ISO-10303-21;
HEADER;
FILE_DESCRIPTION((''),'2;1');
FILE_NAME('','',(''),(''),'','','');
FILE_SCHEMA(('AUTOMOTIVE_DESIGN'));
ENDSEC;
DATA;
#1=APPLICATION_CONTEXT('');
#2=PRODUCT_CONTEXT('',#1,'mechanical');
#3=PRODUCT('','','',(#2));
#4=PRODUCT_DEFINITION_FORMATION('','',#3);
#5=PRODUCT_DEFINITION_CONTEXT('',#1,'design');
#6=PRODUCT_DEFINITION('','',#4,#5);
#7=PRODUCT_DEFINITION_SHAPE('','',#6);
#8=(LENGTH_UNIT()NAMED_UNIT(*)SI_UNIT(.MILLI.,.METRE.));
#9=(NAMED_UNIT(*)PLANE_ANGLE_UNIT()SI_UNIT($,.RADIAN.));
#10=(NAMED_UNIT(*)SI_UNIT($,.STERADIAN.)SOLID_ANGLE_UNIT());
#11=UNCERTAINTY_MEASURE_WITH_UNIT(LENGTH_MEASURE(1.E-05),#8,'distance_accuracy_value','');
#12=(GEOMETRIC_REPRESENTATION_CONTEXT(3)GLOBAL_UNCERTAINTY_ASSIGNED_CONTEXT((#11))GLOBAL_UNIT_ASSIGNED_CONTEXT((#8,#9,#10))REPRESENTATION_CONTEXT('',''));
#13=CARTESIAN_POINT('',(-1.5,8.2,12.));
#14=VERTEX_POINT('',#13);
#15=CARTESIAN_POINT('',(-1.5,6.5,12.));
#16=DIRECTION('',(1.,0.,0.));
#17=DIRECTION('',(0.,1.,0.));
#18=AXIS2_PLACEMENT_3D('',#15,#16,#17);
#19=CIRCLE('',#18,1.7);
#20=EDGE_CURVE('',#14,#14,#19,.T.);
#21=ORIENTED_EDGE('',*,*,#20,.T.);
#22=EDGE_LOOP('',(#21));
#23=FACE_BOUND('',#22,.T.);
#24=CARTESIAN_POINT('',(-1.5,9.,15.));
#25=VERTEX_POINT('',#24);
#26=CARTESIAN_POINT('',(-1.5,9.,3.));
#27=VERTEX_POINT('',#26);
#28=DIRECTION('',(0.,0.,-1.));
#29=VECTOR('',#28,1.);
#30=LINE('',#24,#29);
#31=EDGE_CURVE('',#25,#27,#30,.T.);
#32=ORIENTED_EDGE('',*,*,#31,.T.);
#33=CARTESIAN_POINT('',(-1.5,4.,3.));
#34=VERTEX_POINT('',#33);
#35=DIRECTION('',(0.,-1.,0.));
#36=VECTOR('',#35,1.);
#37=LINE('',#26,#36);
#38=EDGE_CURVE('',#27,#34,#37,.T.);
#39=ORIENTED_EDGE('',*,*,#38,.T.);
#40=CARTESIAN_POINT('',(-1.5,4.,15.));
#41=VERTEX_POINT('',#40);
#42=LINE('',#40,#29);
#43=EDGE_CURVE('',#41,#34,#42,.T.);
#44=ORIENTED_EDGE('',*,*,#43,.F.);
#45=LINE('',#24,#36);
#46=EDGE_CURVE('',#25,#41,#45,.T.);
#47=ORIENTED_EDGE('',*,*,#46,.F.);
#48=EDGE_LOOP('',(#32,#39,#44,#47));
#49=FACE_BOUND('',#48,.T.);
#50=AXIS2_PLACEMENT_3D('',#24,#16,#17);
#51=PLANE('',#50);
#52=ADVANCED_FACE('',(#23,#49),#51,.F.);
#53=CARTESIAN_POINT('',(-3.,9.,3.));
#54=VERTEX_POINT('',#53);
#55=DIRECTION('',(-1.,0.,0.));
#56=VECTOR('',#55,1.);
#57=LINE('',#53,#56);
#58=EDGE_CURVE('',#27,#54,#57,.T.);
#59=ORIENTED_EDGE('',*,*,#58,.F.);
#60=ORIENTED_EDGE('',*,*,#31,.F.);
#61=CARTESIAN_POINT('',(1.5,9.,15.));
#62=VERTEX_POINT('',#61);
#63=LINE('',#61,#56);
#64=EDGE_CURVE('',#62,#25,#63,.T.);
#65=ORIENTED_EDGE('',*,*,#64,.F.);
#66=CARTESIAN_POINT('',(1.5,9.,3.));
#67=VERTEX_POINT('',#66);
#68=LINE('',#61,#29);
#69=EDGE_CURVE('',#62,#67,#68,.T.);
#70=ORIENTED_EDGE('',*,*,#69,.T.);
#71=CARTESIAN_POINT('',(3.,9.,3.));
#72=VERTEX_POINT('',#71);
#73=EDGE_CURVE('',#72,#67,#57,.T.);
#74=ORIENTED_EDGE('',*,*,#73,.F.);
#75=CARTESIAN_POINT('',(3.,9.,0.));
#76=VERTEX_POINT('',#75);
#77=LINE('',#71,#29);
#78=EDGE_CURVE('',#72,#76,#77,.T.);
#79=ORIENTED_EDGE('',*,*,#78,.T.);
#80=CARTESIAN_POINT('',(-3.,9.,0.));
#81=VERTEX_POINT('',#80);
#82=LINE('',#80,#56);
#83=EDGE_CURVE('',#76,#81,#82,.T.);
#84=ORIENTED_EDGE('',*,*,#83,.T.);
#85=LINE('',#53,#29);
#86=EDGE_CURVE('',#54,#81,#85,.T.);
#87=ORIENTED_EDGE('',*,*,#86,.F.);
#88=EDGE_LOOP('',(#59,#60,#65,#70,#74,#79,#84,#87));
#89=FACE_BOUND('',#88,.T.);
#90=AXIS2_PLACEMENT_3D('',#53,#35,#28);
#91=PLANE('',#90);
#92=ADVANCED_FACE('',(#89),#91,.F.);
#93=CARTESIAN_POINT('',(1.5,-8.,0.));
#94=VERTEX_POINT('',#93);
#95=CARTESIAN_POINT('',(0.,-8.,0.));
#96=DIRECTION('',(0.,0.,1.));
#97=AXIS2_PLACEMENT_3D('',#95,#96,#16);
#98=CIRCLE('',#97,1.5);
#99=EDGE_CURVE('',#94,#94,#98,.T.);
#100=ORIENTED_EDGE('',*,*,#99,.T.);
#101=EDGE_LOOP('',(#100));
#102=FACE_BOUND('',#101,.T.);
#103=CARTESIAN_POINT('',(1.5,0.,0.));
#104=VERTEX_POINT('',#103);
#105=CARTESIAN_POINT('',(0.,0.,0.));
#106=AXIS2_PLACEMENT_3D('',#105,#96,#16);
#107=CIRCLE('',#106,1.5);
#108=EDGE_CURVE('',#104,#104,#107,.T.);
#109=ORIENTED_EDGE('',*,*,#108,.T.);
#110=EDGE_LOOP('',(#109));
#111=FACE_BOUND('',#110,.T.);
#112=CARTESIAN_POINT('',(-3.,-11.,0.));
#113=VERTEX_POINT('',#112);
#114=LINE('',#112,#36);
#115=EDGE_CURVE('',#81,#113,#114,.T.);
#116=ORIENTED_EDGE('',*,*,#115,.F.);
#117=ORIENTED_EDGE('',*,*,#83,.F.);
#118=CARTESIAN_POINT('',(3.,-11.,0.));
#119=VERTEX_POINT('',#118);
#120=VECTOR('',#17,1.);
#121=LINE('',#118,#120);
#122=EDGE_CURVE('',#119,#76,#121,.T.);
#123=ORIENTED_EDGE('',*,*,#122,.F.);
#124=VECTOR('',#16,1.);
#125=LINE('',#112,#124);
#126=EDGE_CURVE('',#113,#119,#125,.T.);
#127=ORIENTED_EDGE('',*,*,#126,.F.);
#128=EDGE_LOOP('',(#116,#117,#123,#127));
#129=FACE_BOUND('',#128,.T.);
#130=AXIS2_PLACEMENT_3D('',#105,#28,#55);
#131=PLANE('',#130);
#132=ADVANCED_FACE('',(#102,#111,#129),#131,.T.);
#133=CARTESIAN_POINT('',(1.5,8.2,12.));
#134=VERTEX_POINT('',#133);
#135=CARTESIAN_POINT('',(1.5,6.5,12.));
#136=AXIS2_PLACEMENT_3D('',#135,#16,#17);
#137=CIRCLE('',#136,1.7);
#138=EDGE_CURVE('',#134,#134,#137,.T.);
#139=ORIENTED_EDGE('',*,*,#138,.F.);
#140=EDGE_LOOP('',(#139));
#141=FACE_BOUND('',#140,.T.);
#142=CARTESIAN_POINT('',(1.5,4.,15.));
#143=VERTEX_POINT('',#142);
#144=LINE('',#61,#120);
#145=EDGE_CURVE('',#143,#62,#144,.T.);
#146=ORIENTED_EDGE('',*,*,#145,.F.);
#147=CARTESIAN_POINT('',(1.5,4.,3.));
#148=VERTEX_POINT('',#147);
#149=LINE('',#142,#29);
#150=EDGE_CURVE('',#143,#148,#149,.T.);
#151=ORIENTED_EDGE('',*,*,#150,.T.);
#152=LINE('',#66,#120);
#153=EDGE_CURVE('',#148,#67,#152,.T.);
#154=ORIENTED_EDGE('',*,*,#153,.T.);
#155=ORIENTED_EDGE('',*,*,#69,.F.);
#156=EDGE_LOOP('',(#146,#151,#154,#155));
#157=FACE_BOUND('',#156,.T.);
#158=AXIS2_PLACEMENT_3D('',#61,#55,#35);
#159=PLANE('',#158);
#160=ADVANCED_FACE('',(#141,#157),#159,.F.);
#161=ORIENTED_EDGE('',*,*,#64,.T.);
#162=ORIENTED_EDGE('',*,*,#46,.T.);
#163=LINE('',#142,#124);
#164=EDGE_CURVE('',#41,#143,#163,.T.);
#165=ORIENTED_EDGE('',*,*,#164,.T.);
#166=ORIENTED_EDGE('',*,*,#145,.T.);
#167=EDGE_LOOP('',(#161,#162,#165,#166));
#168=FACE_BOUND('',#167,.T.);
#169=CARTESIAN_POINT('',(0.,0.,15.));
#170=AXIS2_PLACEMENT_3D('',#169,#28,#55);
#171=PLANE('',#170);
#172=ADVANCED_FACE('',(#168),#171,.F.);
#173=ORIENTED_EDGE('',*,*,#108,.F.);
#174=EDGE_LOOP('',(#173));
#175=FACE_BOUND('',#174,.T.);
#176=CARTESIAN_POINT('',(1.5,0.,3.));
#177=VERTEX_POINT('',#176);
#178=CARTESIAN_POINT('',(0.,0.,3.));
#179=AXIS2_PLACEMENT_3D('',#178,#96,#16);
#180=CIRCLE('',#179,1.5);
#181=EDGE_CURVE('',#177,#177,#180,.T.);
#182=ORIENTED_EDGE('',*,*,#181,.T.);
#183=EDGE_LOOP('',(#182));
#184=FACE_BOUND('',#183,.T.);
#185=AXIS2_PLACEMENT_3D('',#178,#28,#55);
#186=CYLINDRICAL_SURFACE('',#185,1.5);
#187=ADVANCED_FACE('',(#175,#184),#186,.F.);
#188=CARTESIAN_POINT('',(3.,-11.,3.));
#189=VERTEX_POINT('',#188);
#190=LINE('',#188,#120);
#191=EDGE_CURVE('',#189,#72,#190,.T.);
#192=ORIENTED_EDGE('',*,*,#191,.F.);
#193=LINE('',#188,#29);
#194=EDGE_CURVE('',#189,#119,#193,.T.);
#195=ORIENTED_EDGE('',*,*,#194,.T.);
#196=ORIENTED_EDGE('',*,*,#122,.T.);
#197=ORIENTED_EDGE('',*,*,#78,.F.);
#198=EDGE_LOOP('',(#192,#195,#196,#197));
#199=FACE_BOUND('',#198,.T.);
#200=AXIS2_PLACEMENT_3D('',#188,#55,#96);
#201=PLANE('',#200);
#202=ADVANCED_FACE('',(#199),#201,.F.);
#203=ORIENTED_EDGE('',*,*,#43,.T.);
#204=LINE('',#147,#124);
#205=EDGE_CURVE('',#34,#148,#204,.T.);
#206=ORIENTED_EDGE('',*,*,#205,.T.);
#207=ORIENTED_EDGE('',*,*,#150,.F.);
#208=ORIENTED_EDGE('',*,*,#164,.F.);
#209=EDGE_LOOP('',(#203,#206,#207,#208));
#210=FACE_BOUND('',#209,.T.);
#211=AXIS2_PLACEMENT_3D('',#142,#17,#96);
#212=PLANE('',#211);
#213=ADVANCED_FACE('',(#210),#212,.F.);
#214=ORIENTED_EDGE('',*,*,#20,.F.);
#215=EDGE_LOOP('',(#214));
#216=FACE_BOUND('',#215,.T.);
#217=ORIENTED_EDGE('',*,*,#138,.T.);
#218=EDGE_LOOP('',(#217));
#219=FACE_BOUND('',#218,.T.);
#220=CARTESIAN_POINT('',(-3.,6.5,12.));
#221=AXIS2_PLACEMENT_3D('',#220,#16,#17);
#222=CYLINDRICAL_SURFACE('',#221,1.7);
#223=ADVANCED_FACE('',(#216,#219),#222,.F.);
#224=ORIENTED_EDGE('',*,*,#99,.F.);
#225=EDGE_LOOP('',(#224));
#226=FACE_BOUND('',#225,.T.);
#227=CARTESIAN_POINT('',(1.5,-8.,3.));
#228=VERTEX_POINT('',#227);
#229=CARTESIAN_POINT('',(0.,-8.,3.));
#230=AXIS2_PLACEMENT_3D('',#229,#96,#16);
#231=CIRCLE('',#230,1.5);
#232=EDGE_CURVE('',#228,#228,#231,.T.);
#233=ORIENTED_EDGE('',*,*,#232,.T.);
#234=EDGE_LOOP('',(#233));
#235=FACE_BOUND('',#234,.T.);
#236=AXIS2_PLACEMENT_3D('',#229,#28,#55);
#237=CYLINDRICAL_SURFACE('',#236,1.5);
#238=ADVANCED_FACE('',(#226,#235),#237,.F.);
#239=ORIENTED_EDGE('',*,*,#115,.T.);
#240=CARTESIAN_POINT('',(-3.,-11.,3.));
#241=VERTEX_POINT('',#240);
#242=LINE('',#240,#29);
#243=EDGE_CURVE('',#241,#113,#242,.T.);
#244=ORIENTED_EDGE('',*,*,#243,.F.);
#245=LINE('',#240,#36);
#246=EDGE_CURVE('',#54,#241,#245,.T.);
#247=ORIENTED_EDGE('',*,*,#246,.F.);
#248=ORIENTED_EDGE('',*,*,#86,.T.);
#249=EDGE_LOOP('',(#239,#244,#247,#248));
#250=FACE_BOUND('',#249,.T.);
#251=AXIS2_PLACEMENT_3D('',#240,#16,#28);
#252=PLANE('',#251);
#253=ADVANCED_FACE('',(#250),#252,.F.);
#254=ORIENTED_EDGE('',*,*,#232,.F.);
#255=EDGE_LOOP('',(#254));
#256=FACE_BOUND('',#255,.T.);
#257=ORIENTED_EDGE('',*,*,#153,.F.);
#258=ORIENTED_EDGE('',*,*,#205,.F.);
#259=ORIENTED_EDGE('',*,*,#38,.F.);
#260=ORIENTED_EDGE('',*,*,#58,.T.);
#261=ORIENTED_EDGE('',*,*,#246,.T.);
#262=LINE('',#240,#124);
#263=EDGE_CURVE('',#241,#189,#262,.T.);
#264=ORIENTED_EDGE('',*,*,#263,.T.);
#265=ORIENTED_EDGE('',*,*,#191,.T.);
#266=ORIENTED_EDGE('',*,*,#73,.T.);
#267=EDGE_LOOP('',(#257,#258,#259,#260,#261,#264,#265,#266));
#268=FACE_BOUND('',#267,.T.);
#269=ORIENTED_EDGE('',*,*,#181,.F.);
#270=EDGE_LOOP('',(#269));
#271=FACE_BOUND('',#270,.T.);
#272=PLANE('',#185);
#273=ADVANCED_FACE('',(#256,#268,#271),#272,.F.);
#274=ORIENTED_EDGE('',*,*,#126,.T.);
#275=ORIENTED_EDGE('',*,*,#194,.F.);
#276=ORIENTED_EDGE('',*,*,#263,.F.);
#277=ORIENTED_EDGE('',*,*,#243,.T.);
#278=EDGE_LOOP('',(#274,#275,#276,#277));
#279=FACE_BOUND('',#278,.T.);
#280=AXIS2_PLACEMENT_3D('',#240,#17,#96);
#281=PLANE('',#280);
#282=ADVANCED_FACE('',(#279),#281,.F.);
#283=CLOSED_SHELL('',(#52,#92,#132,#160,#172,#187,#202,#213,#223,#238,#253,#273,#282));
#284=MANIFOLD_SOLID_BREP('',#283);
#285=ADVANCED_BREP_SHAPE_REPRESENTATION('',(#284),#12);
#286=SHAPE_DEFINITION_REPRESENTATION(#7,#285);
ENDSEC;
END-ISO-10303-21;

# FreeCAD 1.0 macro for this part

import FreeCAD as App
import Part
import Sketcher

V = App.Vector
Q = App.Units.Quantity

doc = App.newDocument("Part")
body = doc.addObject("PartDesign::Body", "Body")

sketch1 = body.newObject("Sketcher::SketchObject", "Sketch")
sketch1.AttachmentSupport = (doc.getObject("XY_Plane"), [""])
sketch1.MapMode = "FlatFace"
sketch1.addGeometry(Part.LineSegment(V(-3, 9, 0), V(-3, -11, 0)), False)
sketch1.addGeometry(Part.LineSegment(V(-3, -11, 0), V(3, -11, 0)), False)
sketch1.addGeometry(Part.LineSegment(V(3, -11, 0), V(3, 9, 0)), False)
sketch1.addGeometry(Part.LineSegment(V(3, 9, 0), V(-3, 9, 0)), False)
sketch1.addGeometry(Part.Circle(V(0, -8, 0), V(0, 0, 1), 1.5), False)
sketch1.addGeometry(Part.Circle(V(0, 0, 0), V(0, 0, 1), 1.5), False)
sketch1.addConstraint(Sketcher.Constraint("Coincident", 0, 2, 1, 1))
sketch1.addConstraint(Sketcher.Constraint("Coincident", 1, 2, 2, 1))
sketch1.addConstraint(Sketcher.Constraint("Coincident", 2, 2, 3, 1))
sketch1.addConstraint(Sketcher.Constraint("Coincident", 3, 2, 0, 1))
sketch1.addConstraint(Sketcher.Constraint("Vertical", 0))
sketch1.addConstraint(Sketcher.Constraint("Horizontal", 1))
sketch1.addConstraint(Sketcher.Constraint("Vertical", 2))
sketch1.addConstraint(Sketcher.Constraint("Horizontal", 3))
sketch1.addConstraint(Sketcher.Constraint("Coincident", 5, 3, -1, 1))
sketch1.addConstraint(Sketcher.Constraint("Equal", 4, 5))
sketch1.addConstraint(Sketcher.Constraint("PointOnObject", 4, 3, -2))
sketch1.addConstraint(Sketcher.Constraint("Diameter", 4, Q("3 mm")))
sketch1.addConstraint(Sketcher.Constraint("DistanceX", 1, 1, 1, 2, Q("6 mm")))
sketch1.addConstraint(Sketcher.Constraint("DistanceY", 0, 2, 0, 1, Q("20 mm")))
sketch1.addConstraint(Sketcher.Constraint("DistanceY", 4, 3, -1, 1, Q("8 mm")))
sketch1.addConstraint(Sketcher.Constraint("DistanceX", 0, 2, -1, 1, Q("3 mm")))
sketch1.addConstraint(Sketcher.Constraint("DistanceY", 0, 2, -1, 1, Q("11 mm")))
pad1 = body.newObject("PartDesign::Pad", "Pad")
pad1.Profile = sketch1
pad1.Length = 3

sketch2 = body.newObject("Sketcher::SketchObject", "Sketch001")
sketch2.AttachmentSupport = (doc.getObject("XY_Plane"), [""])
sketch2.MapMode = "FlatFace"
sketch2.AttachmentOffset = App.Placement(V(0, 0, 3), App.Rotation())
sketch2.addGeometry(Part.LineSegment(V(-1.5, 9, 0), V(-1.5, 4, 0)), False)
sketch2.addGeometry(Part.LineSegment(V(-1.5, 4, 0), V(1.5, 4, 0)), False)
sketch2.addGeometry(Part.LineSegment(V(1.5, 4, 0), V(1.5, 9, 0)), False)
sketch2.addGeometry(Part.LineSegment(V(1.5, 9, 0), V(-1.5, 9, 0)), False)
sketch2.addConstraint(Sketcher.Constraint("Coincident", 0, 2, 1, 1))
sketch2.addConstraint(Sketcher.Constraint("Coincident", 1, 2, 2, 1))
sketch2.addConstraint(Sketcher.Constraint("Coincident", 2, 2, 3, 1))
sketch2.addConstraint(Sketcher.Constraint("Coincident", 3, 2, 0, 1))
sketch2.addConstraint(Sketcher.Constraint("Vertical", 0))
sketch2.addConstraint(Sketcher.Constraint("Horizontal", 1))
sketch2.addConstraint(Sketcher.Constraint("Vertical", 2))
sketch2.addConstraint(Sketcher.Constraint("Horizontal", 3))
sketch2.addConstraint(Sketcher.Constraint("DistanceX", 1, 1, 1, 2, Q("3 mm")))
sketch2.addConstraint(Sketcher.Constraint("DistanceY", 0, 2, 0, 1, Q("5 mm")))
sketch2.addConstraint(Sketcher.Constraint("DistanceY", -1, 1, 0, 2, Q("4 mm")))
sketch2.addConstraint(Sketcher.Constraint("DistanceX", 0, 2, -1, 1, Q("1.5 mm")))
pad2 = body.newObject("PartDesign::Pad", "Pad001")
pad2.Profile = sketch2
pad2.Length = 12

sketch3 = body.newObject("Sketcher::SketchObject", "Sketch002")
sketch3.AttachmentSupport = (doc.getObject("YZ_Plane"), [""])
sketch3.MapMode = "FlatFace"
sketch3.AttachmentOffset = App.Placement(V(0, 0, 1.5), App.Rotation())
sketch3.addGeometry(Part.Circle(V(6.5, 12, 0), V(0, 0, 1), 1.7), False)
sketch3.addConstraint(Sketcher.Constraint("Diameter", 0, Q("3.4 mm")))
sketch3.addConstraint(Sketcher.Constraint("DistanceY", -1, 1, 0, 3, Q("12 mm")))
sketch3.addConstraint(Sketcher.Constraint("DistanceX", -1, 1, 0, 3, Q("6.5 mm")))
pocket1 = body.newObject("PartDesign::Pocket", "Pocket")
pocket1.Profile = sketch3
pocket1.Type = "ThroughAll"

doc.recompute()
